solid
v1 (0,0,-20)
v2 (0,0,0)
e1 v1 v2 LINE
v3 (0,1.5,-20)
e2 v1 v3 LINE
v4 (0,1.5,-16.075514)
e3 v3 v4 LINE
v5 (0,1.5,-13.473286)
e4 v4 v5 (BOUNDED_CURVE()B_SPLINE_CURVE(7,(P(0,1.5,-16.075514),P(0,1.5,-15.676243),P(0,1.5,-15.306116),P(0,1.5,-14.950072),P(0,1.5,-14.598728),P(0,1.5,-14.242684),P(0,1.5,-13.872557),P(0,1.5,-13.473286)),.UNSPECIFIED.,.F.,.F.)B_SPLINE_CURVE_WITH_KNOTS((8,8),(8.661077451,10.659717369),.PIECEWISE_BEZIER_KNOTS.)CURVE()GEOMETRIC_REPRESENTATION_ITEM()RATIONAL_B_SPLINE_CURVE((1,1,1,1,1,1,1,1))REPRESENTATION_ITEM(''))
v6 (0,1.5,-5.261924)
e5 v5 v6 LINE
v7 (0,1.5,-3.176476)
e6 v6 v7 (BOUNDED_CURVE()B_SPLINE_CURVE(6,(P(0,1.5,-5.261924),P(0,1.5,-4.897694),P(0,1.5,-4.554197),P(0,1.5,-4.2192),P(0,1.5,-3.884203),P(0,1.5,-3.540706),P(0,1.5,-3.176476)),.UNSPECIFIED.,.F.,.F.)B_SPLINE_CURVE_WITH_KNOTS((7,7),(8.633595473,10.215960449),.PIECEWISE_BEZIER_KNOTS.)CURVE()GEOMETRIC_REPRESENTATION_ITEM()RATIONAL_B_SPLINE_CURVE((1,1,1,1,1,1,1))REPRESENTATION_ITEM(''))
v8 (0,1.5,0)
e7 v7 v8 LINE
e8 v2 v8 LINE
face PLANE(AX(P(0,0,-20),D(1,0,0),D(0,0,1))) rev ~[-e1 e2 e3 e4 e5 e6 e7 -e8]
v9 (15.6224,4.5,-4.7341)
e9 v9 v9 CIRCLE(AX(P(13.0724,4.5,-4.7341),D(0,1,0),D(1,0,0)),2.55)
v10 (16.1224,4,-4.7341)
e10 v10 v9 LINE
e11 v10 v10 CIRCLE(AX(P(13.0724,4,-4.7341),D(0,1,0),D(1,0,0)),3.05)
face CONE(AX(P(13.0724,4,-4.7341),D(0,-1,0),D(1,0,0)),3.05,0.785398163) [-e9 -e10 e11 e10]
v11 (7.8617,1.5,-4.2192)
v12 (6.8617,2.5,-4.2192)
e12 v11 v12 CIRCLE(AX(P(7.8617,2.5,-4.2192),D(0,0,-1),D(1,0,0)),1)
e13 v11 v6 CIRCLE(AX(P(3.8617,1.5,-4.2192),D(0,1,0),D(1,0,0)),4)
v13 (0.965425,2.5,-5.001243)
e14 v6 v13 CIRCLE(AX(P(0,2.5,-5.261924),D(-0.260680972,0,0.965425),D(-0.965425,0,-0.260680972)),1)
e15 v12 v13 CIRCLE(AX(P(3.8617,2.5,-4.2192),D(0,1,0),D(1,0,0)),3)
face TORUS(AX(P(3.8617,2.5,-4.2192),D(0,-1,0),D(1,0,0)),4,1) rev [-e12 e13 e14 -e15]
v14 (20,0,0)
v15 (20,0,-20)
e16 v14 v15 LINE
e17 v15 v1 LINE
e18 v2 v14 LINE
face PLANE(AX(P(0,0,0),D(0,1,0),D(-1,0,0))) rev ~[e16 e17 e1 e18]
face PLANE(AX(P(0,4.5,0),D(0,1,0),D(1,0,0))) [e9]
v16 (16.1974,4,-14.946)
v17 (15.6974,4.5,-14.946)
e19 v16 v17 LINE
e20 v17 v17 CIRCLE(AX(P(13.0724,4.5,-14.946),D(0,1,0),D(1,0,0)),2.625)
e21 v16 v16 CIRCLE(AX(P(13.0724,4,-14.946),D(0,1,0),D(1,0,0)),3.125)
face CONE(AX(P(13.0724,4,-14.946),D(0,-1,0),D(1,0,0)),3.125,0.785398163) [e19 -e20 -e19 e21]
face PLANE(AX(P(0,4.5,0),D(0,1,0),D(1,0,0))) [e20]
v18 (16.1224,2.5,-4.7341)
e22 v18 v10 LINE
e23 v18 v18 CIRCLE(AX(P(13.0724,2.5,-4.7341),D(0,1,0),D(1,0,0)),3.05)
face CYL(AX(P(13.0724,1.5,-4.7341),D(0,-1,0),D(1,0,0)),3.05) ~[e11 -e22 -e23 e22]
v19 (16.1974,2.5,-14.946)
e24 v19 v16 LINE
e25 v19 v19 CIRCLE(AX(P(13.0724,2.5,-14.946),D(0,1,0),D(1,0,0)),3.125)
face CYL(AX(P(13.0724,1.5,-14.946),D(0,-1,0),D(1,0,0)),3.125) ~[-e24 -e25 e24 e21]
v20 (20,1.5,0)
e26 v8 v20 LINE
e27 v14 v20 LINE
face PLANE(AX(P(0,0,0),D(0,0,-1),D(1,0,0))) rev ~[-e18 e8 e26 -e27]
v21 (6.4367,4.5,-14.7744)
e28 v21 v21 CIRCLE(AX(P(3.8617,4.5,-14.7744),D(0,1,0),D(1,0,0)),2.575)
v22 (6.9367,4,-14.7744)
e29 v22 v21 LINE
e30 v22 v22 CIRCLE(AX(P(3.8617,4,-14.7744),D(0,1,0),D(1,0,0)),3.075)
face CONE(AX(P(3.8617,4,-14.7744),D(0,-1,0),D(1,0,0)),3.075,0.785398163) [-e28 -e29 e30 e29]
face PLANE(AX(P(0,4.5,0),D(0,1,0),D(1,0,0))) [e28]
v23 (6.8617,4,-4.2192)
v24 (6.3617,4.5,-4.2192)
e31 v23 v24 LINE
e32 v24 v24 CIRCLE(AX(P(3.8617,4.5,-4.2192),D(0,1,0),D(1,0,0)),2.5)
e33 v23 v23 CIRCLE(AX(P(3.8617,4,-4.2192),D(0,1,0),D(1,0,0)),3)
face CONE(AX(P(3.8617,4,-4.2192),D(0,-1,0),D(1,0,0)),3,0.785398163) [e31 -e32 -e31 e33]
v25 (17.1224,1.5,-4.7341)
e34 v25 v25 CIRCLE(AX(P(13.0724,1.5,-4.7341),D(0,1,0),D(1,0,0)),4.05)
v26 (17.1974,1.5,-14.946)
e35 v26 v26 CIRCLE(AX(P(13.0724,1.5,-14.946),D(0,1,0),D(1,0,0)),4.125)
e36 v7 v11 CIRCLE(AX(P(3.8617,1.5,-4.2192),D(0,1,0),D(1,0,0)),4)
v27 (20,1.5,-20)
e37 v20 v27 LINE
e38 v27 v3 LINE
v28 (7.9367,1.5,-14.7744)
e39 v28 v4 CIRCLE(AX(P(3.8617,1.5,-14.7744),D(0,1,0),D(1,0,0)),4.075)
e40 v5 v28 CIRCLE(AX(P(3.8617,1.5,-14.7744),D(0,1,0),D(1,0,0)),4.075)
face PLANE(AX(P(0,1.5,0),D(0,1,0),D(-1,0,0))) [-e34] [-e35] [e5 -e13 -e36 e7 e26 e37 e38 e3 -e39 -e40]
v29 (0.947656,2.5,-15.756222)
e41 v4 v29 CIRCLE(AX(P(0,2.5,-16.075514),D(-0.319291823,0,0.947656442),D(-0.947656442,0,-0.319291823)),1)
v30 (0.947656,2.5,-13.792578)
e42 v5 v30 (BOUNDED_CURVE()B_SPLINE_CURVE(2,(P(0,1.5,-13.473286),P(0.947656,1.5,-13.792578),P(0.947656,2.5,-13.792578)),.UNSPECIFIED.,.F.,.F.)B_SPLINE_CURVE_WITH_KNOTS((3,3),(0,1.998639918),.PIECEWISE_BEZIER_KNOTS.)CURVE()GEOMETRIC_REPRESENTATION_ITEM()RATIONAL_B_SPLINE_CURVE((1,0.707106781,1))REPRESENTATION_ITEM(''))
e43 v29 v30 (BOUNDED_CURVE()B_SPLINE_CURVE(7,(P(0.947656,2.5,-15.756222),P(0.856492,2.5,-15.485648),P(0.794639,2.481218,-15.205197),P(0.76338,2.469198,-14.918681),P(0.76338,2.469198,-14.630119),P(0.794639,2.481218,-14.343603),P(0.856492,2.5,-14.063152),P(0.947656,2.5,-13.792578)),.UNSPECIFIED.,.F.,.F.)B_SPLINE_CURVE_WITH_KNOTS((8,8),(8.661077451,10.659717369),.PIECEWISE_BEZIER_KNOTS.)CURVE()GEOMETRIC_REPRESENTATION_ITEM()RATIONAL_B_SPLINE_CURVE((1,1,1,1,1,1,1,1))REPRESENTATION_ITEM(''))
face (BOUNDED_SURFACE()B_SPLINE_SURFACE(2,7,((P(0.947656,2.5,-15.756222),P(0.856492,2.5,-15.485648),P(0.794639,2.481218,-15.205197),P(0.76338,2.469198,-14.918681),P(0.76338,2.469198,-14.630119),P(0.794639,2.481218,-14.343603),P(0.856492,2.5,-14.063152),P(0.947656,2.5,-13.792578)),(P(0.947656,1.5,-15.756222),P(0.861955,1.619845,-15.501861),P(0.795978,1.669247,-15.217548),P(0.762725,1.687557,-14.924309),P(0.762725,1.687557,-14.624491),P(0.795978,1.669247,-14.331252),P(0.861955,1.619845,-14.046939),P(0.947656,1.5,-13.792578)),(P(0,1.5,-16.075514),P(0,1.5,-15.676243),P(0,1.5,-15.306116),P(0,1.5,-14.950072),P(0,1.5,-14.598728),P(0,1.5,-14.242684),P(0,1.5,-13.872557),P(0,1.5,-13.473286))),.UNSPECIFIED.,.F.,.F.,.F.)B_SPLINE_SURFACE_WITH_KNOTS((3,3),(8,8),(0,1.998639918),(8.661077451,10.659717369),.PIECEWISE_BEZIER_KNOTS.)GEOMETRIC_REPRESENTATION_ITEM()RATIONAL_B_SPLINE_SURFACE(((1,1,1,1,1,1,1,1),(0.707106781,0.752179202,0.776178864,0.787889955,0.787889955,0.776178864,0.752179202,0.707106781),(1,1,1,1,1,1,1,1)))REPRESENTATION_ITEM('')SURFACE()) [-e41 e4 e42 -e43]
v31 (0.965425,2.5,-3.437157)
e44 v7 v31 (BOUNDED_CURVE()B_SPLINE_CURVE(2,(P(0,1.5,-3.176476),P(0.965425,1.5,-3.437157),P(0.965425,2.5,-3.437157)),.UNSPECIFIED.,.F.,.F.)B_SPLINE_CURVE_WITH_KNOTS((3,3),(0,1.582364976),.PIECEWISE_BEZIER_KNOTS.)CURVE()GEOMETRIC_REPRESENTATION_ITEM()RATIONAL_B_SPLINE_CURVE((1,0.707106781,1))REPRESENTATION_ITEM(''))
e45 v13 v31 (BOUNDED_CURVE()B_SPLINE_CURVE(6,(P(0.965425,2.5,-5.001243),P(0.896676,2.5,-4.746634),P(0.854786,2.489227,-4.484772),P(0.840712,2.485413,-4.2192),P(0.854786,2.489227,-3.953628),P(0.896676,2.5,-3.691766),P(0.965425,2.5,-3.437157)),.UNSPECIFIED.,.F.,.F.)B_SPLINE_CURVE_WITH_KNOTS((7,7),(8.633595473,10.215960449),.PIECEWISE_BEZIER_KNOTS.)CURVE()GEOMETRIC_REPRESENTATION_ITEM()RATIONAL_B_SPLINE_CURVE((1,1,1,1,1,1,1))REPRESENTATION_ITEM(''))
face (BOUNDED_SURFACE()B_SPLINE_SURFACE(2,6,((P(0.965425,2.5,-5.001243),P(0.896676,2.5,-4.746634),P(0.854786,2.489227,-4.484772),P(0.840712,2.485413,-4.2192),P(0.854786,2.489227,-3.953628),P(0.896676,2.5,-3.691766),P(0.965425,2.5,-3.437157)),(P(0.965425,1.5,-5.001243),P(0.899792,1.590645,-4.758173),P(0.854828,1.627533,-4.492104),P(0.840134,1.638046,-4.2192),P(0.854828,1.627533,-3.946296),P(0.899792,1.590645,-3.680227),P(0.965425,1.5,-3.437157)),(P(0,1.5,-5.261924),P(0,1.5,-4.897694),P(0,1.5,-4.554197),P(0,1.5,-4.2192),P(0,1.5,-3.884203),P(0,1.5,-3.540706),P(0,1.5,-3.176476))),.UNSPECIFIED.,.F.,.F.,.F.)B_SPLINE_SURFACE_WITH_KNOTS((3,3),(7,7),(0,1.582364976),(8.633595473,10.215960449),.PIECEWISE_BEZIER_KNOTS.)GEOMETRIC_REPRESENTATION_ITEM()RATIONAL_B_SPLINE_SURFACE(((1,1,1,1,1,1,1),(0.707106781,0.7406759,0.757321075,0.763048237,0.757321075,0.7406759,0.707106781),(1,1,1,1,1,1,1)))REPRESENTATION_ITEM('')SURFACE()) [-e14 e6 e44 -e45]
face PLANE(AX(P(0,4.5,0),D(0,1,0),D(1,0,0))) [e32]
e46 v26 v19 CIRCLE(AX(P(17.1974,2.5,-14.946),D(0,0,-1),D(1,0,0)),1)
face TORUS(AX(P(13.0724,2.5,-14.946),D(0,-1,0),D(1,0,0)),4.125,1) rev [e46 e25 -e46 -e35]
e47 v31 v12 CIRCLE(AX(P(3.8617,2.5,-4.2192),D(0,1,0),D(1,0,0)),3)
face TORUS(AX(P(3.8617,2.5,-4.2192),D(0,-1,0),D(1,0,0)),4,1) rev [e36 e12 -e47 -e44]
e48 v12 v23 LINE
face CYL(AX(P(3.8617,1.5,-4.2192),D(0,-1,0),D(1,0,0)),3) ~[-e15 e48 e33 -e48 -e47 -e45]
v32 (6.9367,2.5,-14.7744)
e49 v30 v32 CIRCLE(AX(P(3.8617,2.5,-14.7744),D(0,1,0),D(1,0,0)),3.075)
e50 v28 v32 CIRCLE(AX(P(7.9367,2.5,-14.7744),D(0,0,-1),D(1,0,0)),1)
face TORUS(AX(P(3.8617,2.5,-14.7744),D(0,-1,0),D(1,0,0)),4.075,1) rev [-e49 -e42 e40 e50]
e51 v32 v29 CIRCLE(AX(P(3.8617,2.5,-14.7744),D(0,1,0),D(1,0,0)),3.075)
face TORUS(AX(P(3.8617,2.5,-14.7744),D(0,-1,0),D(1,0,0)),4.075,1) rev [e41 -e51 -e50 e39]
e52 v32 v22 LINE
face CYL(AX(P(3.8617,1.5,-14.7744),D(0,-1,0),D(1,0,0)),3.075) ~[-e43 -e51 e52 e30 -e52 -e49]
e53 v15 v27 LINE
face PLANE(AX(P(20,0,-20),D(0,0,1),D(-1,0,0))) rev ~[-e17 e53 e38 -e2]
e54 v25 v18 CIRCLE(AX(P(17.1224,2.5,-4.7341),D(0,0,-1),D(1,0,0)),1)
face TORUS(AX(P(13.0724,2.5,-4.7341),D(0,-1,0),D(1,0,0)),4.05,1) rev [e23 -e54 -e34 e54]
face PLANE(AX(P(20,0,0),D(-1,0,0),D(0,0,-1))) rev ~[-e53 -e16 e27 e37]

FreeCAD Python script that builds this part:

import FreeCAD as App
import Part
import Sketcher

V = App.Vector


def edges_at(feature, points):
    """Names of the edges that pass closest to the given points."""
    edges = feature.Shape.Edges
    near = lambda p: min(range(len(edges)), key=lambda i: edges[i].distToShape(Part.Vertex(*p))[0])
    return sorted({f"Edge{near(p) + 1}" for p in points})


def add_polygon(sketch, points):
    """Adds a closed chain of lines whose ends are joined by coincident constraints."""
    first, n = sketch.GeometryCount, len(points)
    for a, b in zip(points, points[1:] + points[:1]):
        sketch.addGeometry(Part.LineSegment(App.Vector(*a, 0), App.Vector(*b, 0)), False)
    for i in range(n):
        sketch.addConstraint(Sketcher.Constraint("Coincident", first + i, 2, first + (i + 1) % n, 1))

doc = App.newDocument("Part")
body = doc.addObject("PartDesign::Body", "Body")

# Sketch on XZ plane
sketch1 = body.newObject("Sketcher::SketchObject", "Sketch")
sketch1.AttachmentSupport = (doc.getObject("XZ_Plane"), [""])
sketch1.MapMode = "FlatFace"
add_polygon(sketch1, [(0, -20), (0, 0), (20, 0), (20, -20)])  # lines 0-3
sketch1.addConstraint(Sketcher.Constraint("Vertical", 0))
sketch1.addConstraint(Sketcher.Constraint("Horizontal", 1))
sketch1.addConstraint(Sketcher.Constraint("Vertical", 2))
sketch1.addConstraint(Sketcher.Constraint("Horizontal", 3))
sketch1.addConstraint(Sketcher.Constraint("Coincident", 0, 2, -1, 1))
sketch1.addConstraint(Sketcher.Constraint("Equal", 3, 0))
sketch1.addConstraint(Sketcher.Constraint("DistanceX", 1, 1, 1, 2, 20.0))
pad1 = body.newObject("PartDesign::Pad", "Pad")
pad1.Profile = sketch1
pad1.Length = 1.5
pad1.Reversed = True

# Sketch on XZ plane
sketch2 = body.newObject("Sketcher::SketchObject", "Sketch001")
sketch2.AttachmentSupport = (doc.getObject("XZ_Plane"), [""])
sketch2.MapMode = "FlatFace"
sketch2.AttachmentOffset = App.Placement(V(0, 0, -1.5), App.Rotation())
sketch2.addGeometry(Part.Circle(V(3.8617, -4.2192, 0), V(0, 0, 1), 3), False)
sketch2.addGeometry(Part.Circle(V(13.0724, -4.7341, 0), V(0, 0, 1), 3.05), False)
sketch2.addGeometry(Part.Circle(V(3.8617, -14.7744, 0), V(0, 0, 1), 3.075), False)
sketch2.addGeometry(Part.Circle(V(13.0724, -14.946, 0), V(0, 0, 1), 3.125), False)
sketch2.addConstraint(Sketcher.Constraint("Vertical", 0, 3, 2, 3))
sketch2.addConstraint(Sketcher.Constraint("Vertical", 1, 3, 3, 3))
sketch2.addConstraint(Sketcher.Constraint("Diameter", 0, 6.0))
sketch2.addConstraint(Sketcher.Constraint("Diameter", 1, 6.1))
sketch2.addConstraint(Sketcher.Constraint("Diameter", 2, 6.15))
sketch2.addConstraint(Sketcher.Constraint("Diameter", 3, 6.25))
sketch2.addConstraint(Sketcher.Constraint("DistanceY", 1, 3, -1, 1, 4.734))
sketch2.addConstraint(Sketcher.Constraint("DistanceY", 3, 3, -1, 1, 14.946))
sketch2.addConstraint(Sketcher.Constraint("DistanceY", 1, 3, 0, 3, 0.515))
sketch2.addConstraint(Sketcher.Constraint("DistanceX", -1, 1, 0, 3, 3.8617))
sketch2.addConstraint(Sketcher.Constraint("DistanceX", -1, 1, 1, 3, 13.0724))
sketch2.addConstraint(Sketcher.Constraint("DistanceY", 2, 3, -1, 1, 14.7744))
pad2 = body.newObject("PartDesign::Pad", "Pad001")
pad2.Profile = sketch2
pad2.Length = 3
pad2.Reversed = True
doc.recompute()

fillet = body.newObject("PartDesign::Fillet", "Fillet")
fillet.Base = (pad2, edges_at(pad2, [
    (10.022, 1.5, -4.734),
    (0.862, 1.5, -4.219),
    (0.787, 1.5, -14.774),
    (9.947, 1.5, -14.946),
]))
fillet.Radius = 1
doc.recompute()

chamfer = body.newObject("PartDesign::Chamfer", "Chamfer")
chamfer.Base = (fillet, edges_at(fillet, [
    (10.022, 4.5, -4.734),
    (9.947, 4.5, -14.946),
    (0.787, 4.5, -14.774),
    (0.862, 4.5, -4.219),
]))
chamfer.Size = 0.5

doc.recompute()
